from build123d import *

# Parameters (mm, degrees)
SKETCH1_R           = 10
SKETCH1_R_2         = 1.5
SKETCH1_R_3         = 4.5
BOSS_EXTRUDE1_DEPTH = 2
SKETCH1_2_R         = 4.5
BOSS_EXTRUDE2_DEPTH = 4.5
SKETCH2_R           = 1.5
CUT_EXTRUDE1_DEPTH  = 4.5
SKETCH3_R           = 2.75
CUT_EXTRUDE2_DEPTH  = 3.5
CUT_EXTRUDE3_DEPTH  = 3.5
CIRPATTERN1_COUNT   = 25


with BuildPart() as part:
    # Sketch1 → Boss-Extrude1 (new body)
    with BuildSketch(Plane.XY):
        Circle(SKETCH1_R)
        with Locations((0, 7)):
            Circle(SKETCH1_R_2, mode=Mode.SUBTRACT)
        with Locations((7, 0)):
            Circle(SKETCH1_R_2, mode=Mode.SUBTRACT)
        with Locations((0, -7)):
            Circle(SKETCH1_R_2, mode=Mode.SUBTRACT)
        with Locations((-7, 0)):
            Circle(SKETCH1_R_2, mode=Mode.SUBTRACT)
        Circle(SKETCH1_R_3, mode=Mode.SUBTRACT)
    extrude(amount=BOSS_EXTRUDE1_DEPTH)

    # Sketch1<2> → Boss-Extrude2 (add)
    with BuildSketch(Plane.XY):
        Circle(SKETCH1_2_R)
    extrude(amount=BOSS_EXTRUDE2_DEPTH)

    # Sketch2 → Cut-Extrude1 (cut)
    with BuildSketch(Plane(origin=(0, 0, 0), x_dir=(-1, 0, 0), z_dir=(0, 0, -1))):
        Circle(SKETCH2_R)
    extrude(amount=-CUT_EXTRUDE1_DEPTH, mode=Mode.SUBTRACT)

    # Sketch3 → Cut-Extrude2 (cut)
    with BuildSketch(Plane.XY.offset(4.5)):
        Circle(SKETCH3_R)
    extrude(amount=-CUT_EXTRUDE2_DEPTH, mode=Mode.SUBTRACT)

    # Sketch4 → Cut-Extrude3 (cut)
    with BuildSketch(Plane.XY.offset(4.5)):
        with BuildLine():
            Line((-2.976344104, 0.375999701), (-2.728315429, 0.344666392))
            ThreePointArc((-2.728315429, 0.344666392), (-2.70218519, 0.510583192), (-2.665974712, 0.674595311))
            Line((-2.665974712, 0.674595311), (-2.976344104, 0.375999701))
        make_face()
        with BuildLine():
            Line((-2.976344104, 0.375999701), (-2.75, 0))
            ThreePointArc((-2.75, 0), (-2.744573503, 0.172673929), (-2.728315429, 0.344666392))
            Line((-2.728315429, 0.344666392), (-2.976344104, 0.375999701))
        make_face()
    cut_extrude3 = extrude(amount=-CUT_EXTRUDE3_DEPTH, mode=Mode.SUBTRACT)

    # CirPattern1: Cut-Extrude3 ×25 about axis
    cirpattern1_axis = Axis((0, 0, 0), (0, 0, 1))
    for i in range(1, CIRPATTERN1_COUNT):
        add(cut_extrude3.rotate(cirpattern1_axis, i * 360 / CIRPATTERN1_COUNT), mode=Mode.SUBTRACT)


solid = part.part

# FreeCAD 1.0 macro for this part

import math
import FreeCAD as App
import Part
import Sketcher

V = App.Vector

doc = App.newDocument("Part")
body = doc.addObject("PartDesign::Body", "Body")

# Sketch on XY plane
sketch1 = doc.addObject("Sketcher::SketchObject", "Sketch")
body.addObject(sketch1)
sketch1.AttachmentSupport = (doc.XY_Plane, [""])
sketch1.MapMode = "FlatFace"
sketch1.addGeometry([
    Part.Circle(V(0, 0, 0), V(0, 0, 1), 10),  # 0
    Part.Circle(V(0, -7, 0), V(0, 0, 1), 1.5),  # 1
    Part.Circle(V(-7, 0, 0), V(0, 0, 1), 1.5),  # 2
    Part.Circle(V(0, 0, 0), V(0, 0, 1), 4.5),  # 3
    Part.Circle(V(7, 0, 0), V(0, 0, 1), 1.5),  # 4
    Part.Circle(V(0, 7, 0), V(0, 0, 1), 1.5),  # 5
], False)
sketch1.addConstraint([
    Sketcher.Constraint("Coincident", 0, 3, -1, 1),
    Sketcher.Constraint("Coincident", 3, 3, -1, 1),
    Sketcher.Constraint("Equal", 1, 2),
    Sketcher.Constraint("Equal", 2, 4),
    Sketcher.Constraint("Equal", 4, 5),
    Sketcher.Constraint("Symmetric", 2, 3, 4, 3, -1, 1),
    Sketcher.Constraint("Symmetric", 1, 3, 5, 3, -1, 1),
    Sketcher.Constraint("PointOnObject", 1, 3, -2),
    Sketcher.Constraint("PointOnObject", 2, 3, -1),
    Sketcher.Constraint("Diameter", 0, 20.0),
    Sketcher.Constraint("Diameter", 1, 3.0),
    Sketcher.Constraint("Diameter", 3, 9.0),
    Sketcher.Constraint("DistanceY", 1, 3, -1, 1, 7.0),
    Sketcher.Constraint("DistanceX", 2, 3, -1, 1, 7.0),
])
pad1 = doc.addObject("PartDesign::Pad", "Pad")
body.addObject(pad1)
pad1.Profile = sketch1
pad1.Length = 2

# Sketch on XY plane
sketch2 = doc.addObject("Sketcher::SketchObject", "Sketch001")
body.addObject(sketch2)
sketch2.AttachmentSupport = (doc.XY_Plane, [""])
sketch2.MapMode = "FlatFace"
sketch2.addGeometry(Part.Circle(V(0, 0, 0), V(0, 0, 1), 4.5), False)
sketch2.addConstraint([
    Sketcher.Constraint("Coincident", 0, 3, -1, 1),
    Sketcher.Constraint("Diameter", 0, 9.0),
])
pad2 = doc.addObject("PartDesign::Pad", "Pad001")
body.addObject(pad2)
pad2.Profile = sketch2
pad2.Length = 4.5

# Sketch on XY plane
sketch3 = doc.addObject("Sketcher::SketchObject", "Sketch002")
body.addObject(sketch3)
sketch3.AttachmentSupport = (doc.XY_Plane, [""])
sketch3.MapMode = "FlatFace"
sketch3.addGeometry(Part.Circle(V(0, 0, 0), V(0, 0, 1), 1.5), False)
sketch3.addConstraint([
    Sketcher.Constraint("Coincident", 0, 3, -1, 1),
    Sketcher.Constraint("Diameter", 0, 3.0),
])
pocket1 = doc.addObject("PartDesign::Pocket", "Pocket")
body.addObject(pocket1)
pocket1.Profile = sketch3
pocket1.Length = 4.5
pocket1.Reversed = True

# Sketch on XY plane
sketch4 = doc.addObject("Sketcher::SketchObject", "Sketch003")
body.addObject(sketch4)
sketch4.AttachmentSupport = (doc.XY_Plane, [""])
sketch4.MapMode = "FlatFace"
sketch4.AttachmentOffset = App.Placement(V(0, 0, 4.5), App.Rotation())
sketch4.addGeometry(Part.Circle(V(0, 0, 0), V(0, 0, 1), 2.75), False)
sketch4.addConstraint([
    Sketcher.Constraint("Coincident", 0, 3, -1, 1),
    Sketcher.Constraint("Diameter", 0, 5.5),
])
pocket2 = doc.addObject("PartDesign::Pocket", "Pocket001")
body.addObject(pocket2)
pocket2.Profile = sketch4
pocket2.Length = 3.5

# Sketch on XY plane
sketch5 = doc.addObject("Sketcher::SketchObject", "Sketch004")
body.addObject(sketch5)
sketch5.AttachmentSupport = (doc.XY_Plane, [""])
sketch5.MapMode = "FlatFace"
sketch5.AttachmentOffset = App.Placement(V(0, 0, 4.5), App.Rotation())
sketch5.addGeometry([
    Part.ArcOfCircle(Part.Circle(V(0, 0, 0), V(0, 0, 1), 2.75), math.radians(165.8), math.radians(172.799999)),
    Part.LineSegment(V(-2.665975, 0.674595, 0), V(-2.976344, 0.376, 0)),
    Part.LineSegment(V(-2.976344, 0.376, 0), V(-2.75, 0, 0)),
    Part.ArcOfCircle(Part.Circle(V(0, 0, 0), V(0, 0, 1), 2.75), math.radians(172.8), math.radians(180)),
], False)
sketch5.addConstraint([
    Sketcher.Constraint("Coincident", 0, 1, 1, 1),
    Sketcher.Constraint("Coincident", 1, 2, 2, 1),
    Sketcher.Constraint("Coincident", 2, 2, 3, 2),
    Sketcher.Constraint("Tangent", 3, 1, 0, 2),
    Sketcher.Constraint("Coincident", 0, 3, -1, 1),
    Sketcher.Constraint("Equal", 0, 3),
    Sketcher.Constraint("PointOnObject", 2, 2, -1),
    Sketcher.Constraint("Radius", 0, 2.75),
    Sketcher.Constraint("DistanceY", -1, 1, 1, 2, 0.376),
    Sketcher.Constraint("Distance", 2, 0.438871),
    Sketcher.Constraint("DistanceX", 1, 2, 0, 1, 0.310369),
    Sketcher.Constraint("DistanceX", 1, 2, 3, 1, 0.248029),
])
pocket3 = doc.addObject("PartDesign::Pocket", "Pocket002")
body.addObject(pocket3)
pocket3.Profile = sketch5
pocket3.Length = 3.5
doc.recompute()

polarpattern = doc.addObject("PartDesign::PolarPattern", "PolarPattern")
body.addObject(polarpattern)
polarpattern.Originals = [pocket3]
polarpattern.Axis = (doc.Z_Axis, [""])
polarpattern.Angle = 360
polarpattern.Occurrences = 25
body.Tip = polarpattern

doc.recompute()
